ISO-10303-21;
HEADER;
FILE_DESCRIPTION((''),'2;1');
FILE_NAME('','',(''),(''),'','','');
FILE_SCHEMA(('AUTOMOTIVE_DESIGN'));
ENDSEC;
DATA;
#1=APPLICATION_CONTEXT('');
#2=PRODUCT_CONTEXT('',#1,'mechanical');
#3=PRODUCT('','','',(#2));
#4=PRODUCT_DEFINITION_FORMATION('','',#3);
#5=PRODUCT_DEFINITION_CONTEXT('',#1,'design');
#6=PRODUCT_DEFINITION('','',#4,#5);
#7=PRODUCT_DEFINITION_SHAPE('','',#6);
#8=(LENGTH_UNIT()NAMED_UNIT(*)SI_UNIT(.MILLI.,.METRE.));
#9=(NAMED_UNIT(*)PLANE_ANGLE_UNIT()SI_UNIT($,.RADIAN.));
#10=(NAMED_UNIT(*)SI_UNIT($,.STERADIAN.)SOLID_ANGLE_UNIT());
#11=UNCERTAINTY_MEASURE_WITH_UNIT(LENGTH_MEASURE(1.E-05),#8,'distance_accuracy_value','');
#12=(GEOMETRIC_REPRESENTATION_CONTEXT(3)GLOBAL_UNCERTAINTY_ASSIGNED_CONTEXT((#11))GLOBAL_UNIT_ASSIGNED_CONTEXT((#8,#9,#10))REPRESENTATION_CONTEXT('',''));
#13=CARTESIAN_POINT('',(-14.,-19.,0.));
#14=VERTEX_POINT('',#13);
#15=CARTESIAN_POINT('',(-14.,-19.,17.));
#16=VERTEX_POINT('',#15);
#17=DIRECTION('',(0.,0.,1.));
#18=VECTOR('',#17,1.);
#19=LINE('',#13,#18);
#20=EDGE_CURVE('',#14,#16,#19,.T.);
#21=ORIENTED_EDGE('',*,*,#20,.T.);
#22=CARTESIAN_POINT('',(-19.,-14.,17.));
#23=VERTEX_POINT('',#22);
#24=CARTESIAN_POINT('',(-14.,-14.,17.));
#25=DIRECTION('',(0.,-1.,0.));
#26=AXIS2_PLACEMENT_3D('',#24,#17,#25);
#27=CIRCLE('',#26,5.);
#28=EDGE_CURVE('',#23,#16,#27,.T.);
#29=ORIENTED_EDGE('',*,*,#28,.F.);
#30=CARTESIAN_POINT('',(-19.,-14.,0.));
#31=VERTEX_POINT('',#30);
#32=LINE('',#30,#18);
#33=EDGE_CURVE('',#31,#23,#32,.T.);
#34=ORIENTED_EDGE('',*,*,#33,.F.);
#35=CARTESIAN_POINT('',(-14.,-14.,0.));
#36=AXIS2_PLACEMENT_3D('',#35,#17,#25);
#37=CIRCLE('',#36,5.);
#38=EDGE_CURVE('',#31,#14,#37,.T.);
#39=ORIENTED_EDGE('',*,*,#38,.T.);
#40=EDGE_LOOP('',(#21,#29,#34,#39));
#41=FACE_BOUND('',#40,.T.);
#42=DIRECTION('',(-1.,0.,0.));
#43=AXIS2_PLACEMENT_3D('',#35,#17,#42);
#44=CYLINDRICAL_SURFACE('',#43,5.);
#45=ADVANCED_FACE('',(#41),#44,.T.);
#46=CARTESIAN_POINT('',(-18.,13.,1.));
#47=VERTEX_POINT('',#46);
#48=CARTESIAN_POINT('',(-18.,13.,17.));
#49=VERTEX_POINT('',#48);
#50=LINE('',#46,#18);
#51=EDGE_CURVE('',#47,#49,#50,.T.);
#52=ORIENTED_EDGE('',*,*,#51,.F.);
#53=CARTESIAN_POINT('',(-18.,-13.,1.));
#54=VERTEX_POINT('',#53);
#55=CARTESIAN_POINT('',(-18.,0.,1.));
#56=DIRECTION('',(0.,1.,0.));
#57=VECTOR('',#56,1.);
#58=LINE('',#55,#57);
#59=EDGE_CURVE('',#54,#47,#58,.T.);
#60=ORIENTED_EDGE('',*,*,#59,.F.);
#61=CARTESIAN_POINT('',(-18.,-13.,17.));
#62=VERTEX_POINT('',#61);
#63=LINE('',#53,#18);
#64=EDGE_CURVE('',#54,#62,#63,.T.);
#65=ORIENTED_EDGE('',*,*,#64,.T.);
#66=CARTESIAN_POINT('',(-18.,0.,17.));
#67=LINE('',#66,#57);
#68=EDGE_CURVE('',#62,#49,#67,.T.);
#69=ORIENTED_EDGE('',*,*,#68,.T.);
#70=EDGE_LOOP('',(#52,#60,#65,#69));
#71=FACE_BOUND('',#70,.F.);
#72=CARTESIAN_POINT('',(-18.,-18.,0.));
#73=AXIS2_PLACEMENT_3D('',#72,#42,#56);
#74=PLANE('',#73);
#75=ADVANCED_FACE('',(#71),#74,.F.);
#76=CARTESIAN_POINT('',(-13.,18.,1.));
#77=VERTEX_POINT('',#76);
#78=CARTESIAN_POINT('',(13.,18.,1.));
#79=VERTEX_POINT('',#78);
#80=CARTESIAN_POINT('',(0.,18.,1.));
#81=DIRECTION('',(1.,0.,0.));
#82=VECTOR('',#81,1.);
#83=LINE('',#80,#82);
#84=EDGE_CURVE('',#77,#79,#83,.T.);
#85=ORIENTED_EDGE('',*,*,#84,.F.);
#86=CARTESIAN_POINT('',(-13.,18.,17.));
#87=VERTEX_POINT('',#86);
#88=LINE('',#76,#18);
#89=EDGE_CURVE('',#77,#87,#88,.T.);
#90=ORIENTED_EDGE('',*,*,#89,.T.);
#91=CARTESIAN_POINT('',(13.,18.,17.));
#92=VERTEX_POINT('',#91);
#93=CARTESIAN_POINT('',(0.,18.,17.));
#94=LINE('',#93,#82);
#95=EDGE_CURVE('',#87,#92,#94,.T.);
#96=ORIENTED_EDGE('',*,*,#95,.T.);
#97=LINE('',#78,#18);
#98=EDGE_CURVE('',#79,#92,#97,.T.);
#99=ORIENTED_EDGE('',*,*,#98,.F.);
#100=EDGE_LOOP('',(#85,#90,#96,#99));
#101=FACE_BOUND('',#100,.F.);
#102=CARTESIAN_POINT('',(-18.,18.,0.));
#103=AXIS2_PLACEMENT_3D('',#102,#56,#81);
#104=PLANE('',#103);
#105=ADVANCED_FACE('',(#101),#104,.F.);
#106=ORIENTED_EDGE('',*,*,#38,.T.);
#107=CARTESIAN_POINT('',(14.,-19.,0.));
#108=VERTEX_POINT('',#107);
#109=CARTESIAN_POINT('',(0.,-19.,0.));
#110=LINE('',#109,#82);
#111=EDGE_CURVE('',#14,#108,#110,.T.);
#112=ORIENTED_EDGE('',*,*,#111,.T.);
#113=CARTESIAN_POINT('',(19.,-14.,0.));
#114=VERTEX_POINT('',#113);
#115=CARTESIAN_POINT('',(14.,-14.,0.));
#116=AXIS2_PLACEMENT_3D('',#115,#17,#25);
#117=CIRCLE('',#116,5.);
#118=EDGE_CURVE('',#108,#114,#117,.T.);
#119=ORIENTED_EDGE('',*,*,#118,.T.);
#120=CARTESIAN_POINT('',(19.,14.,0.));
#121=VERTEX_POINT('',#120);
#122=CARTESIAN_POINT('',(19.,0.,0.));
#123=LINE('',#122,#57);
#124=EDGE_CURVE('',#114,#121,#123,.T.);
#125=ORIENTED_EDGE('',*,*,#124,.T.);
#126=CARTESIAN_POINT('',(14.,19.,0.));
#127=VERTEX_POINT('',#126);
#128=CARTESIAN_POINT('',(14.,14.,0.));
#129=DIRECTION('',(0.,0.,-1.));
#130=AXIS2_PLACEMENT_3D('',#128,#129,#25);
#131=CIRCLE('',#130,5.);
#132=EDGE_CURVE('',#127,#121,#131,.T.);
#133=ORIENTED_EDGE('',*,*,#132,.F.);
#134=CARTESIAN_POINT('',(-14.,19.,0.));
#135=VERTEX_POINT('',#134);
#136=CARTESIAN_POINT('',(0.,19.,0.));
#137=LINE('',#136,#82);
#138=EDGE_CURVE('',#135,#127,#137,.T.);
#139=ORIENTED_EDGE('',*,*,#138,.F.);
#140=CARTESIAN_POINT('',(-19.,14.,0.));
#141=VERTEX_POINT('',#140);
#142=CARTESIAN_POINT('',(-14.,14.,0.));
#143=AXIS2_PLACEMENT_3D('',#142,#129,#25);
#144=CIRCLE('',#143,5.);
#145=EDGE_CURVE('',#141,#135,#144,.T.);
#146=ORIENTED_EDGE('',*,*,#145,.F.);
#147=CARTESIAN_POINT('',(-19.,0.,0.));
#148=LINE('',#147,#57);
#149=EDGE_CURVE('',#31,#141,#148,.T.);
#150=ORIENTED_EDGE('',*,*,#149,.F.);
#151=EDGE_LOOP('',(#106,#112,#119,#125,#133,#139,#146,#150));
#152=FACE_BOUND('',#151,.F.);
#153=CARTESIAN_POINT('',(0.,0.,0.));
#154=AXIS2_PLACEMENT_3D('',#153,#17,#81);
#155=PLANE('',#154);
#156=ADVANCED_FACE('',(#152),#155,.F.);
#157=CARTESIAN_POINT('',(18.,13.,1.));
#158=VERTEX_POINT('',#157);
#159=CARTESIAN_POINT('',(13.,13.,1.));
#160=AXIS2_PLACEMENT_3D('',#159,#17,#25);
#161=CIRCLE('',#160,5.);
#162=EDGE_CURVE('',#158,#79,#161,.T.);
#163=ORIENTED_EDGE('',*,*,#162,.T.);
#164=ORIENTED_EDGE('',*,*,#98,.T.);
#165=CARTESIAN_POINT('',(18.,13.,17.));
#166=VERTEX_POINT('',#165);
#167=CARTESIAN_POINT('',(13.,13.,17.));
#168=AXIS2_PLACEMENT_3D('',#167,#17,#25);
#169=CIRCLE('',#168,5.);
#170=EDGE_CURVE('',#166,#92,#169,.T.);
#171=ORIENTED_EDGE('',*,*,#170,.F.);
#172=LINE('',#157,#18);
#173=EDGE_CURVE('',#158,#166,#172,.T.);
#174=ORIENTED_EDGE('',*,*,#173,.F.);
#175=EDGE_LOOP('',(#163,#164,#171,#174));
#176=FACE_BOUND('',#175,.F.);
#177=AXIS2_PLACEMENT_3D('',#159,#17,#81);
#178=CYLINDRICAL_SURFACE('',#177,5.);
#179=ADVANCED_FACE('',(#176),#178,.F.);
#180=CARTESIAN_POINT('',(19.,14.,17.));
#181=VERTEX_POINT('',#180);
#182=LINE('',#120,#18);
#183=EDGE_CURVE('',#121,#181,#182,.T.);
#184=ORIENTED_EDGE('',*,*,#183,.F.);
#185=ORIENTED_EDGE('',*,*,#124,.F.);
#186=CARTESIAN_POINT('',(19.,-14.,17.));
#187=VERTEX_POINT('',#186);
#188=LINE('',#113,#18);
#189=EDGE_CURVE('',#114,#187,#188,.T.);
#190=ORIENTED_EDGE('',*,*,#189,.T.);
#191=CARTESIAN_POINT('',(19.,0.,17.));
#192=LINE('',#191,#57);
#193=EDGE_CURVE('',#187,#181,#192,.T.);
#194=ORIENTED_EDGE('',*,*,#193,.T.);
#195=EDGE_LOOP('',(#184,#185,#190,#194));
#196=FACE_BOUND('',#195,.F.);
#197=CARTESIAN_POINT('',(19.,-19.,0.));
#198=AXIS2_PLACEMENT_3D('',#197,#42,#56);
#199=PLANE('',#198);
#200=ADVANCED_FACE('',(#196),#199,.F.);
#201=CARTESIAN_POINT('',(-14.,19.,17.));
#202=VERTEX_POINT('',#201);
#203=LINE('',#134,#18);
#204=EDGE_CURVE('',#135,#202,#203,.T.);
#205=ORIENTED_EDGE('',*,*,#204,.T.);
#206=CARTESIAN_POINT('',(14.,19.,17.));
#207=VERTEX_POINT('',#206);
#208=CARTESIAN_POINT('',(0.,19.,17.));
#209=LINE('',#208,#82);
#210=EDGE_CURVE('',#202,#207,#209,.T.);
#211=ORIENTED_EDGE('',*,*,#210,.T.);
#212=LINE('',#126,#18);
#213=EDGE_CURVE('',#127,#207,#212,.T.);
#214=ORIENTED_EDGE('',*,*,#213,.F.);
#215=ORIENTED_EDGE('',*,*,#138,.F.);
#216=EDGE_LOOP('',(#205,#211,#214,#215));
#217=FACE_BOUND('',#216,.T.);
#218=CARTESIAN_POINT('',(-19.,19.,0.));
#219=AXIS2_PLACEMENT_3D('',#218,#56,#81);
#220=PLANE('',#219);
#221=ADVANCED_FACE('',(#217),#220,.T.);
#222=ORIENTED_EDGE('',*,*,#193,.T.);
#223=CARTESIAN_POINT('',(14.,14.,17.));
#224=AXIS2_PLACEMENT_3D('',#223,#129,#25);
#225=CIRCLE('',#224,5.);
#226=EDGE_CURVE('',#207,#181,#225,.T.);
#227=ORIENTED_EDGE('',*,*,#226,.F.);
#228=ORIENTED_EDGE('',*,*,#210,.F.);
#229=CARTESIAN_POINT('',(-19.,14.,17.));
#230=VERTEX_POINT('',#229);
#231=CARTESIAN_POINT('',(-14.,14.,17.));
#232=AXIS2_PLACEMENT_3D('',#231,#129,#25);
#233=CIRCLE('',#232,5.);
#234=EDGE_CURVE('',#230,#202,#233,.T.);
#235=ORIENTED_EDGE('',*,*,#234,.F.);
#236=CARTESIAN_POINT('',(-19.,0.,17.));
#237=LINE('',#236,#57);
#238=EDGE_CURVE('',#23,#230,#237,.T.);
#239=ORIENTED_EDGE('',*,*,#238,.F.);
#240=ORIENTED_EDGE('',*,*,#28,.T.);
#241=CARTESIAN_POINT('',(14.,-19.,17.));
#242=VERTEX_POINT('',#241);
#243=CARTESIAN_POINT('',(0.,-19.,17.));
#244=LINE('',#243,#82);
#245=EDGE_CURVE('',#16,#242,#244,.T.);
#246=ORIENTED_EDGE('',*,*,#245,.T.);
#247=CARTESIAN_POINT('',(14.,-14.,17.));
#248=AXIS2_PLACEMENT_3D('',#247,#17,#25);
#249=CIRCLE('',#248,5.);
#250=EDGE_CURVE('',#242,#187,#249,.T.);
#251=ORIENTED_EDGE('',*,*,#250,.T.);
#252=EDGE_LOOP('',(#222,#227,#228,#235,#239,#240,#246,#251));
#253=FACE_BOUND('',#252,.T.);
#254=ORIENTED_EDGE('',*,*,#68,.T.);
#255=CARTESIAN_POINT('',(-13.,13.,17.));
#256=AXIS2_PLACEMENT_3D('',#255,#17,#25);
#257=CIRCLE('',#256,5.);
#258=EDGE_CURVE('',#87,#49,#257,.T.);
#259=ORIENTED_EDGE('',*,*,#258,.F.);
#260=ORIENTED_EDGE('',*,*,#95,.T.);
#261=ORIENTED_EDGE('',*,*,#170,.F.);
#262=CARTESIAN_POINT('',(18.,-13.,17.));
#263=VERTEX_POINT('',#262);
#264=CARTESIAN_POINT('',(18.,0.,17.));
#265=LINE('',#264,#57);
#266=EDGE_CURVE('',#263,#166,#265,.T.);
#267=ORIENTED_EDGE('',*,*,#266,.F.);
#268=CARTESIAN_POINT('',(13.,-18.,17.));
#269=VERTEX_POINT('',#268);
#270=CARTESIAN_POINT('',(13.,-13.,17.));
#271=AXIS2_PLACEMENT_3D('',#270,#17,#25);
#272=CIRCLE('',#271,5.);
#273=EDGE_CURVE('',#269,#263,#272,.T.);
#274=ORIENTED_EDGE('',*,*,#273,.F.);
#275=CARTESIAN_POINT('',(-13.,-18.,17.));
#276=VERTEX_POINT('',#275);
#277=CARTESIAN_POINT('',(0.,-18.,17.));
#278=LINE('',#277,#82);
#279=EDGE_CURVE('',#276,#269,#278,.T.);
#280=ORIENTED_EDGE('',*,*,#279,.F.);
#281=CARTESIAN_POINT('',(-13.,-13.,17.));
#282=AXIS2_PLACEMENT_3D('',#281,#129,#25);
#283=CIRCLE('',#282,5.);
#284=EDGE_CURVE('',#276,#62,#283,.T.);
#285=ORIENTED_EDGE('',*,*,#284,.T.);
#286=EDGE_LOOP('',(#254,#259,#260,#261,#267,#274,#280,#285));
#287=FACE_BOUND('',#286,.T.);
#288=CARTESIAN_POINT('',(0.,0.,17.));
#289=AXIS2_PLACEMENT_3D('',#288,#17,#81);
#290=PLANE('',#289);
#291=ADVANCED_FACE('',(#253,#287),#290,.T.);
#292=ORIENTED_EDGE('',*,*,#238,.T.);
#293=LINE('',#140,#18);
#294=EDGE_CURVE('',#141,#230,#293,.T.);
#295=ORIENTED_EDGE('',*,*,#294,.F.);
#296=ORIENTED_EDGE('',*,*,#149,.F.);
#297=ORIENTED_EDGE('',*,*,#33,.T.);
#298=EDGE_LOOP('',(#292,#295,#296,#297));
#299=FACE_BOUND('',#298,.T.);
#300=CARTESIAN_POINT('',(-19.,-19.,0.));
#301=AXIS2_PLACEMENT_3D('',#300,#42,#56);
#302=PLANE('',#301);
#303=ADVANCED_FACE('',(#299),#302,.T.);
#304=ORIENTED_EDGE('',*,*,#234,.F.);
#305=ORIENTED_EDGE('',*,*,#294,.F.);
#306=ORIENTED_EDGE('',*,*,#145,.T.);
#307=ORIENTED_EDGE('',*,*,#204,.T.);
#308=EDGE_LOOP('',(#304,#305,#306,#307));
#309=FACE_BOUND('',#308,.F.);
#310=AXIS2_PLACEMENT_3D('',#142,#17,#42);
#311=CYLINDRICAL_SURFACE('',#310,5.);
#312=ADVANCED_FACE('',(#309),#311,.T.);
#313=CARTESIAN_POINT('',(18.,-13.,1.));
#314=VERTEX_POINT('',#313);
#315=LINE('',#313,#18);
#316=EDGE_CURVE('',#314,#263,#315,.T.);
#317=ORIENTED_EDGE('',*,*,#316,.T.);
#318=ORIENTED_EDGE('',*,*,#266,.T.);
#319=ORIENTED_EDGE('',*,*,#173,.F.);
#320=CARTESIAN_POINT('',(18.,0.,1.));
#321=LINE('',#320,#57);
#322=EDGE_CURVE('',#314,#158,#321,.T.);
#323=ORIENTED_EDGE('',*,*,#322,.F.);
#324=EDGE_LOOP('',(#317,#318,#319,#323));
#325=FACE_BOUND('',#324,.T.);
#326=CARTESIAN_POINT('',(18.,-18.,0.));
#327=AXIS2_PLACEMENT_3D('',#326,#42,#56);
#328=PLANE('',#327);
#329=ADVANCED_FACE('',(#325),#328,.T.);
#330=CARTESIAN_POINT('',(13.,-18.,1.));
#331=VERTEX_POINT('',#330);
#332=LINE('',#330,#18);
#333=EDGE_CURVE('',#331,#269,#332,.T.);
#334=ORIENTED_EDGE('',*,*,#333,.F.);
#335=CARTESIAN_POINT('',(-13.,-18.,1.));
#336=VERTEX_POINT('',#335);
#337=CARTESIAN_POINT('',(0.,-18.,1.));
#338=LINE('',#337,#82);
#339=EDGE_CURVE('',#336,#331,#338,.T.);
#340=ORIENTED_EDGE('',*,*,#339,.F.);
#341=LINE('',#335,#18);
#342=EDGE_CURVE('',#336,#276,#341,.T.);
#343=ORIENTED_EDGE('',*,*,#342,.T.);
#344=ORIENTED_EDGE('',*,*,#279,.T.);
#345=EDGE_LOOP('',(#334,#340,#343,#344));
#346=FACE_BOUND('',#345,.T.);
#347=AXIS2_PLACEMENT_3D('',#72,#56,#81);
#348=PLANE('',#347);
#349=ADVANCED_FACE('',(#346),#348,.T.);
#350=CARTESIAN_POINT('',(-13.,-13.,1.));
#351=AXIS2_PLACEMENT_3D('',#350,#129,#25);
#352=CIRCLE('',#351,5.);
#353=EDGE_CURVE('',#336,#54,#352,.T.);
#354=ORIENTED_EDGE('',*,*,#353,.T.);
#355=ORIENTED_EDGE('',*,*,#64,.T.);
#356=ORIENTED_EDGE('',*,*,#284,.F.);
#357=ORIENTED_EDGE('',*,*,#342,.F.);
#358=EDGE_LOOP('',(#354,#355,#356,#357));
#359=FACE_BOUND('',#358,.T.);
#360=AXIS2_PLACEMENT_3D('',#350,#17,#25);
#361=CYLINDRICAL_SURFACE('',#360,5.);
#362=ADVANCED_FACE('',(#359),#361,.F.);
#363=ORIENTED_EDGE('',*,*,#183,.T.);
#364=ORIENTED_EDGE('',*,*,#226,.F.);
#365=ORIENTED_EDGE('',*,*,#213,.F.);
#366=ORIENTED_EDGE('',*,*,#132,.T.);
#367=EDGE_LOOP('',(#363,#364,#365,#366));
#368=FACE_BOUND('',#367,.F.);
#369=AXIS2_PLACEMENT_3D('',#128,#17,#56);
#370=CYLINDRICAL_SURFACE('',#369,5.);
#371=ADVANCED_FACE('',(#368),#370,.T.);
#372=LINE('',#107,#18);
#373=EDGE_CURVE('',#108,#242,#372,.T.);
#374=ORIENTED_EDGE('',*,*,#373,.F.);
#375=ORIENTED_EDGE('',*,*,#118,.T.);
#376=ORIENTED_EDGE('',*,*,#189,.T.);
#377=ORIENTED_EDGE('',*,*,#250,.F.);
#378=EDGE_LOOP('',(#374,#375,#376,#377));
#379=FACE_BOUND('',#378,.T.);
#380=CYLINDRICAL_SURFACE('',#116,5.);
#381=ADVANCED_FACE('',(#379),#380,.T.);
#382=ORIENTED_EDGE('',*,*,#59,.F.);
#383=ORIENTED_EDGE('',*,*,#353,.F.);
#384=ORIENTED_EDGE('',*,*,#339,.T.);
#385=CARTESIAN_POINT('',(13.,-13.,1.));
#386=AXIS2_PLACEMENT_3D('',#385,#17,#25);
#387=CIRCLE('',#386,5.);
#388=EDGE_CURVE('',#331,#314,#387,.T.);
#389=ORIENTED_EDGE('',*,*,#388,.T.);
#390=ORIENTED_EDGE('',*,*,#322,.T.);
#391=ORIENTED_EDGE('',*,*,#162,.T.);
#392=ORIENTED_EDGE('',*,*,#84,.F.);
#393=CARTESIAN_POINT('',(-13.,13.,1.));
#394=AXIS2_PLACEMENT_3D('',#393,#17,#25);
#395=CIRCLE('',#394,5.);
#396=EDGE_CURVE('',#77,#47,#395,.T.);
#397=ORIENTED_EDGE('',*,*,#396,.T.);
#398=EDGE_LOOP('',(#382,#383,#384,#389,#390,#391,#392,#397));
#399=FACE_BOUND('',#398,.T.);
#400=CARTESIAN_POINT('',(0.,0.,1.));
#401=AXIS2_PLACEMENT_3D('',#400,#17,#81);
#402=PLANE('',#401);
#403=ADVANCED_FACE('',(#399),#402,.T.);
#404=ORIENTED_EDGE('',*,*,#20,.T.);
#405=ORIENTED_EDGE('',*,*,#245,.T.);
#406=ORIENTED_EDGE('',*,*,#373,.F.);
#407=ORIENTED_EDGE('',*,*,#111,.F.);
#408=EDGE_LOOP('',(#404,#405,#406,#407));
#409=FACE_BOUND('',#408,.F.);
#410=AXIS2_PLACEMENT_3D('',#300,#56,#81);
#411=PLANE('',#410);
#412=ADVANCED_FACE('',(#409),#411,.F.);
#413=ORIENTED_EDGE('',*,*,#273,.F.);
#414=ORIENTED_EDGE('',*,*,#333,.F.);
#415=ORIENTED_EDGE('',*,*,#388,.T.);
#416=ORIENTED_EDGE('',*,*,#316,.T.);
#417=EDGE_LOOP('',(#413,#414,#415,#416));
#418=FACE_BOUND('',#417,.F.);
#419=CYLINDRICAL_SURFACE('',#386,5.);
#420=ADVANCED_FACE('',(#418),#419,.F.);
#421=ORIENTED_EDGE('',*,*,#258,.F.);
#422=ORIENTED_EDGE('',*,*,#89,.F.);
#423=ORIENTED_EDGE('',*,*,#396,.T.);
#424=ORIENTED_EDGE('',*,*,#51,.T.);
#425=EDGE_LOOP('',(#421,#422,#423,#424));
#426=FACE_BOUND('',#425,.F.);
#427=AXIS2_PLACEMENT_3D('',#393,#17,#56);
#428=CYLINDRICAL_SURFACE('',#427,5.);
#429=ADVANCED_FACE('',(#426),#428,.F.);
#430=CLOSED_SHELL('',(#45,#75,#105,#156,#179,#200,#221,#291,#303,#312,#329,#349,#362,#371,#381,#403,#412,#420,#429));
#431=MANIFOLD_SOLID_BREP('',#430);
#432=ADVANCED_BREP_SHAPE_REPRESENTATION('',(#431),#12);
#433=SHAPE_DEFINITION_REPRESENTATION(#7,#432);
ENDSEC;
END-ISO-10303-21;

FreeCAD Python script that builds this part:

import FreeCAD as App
import Part
import Sketcher

V = App.Vector


def edges_at(feature, points):
    """Names of the edges that pass closest to the given points."""
    edges = feature.Shape.Edges
    near = lambda p: min(range(len(edges)), key=lambda i: edges[i].distToShape(Part.Vertex(*p))[0])
    return sorted({f"Edge{near(p) + 1}" for p in points})


def add_polygon(sketch, points):
    """Adds a closed chain of lines whose ends are joined by coincident constraints."""
    first, n = sketch.GeometryCount, len(points)
    for a, b in zip(points, points[1:] + points[:1]):
        sketch.addGeometry(Part.LineSegment(App.Vector(*a, 0), App.Vector(*b, 0)), False)
    for i in range(n):
        sketch.addConstraint(Sketcher.Constraint("Coincident", first + i, 2, first + (i + 1) % n, 1))

doc = App.newDocument("Part")
body = doc.addObject("PartDesign::Body", "Body")

sketch1 = doc.addObject("Sketcher::SketchObject", "Sketch")
body.addObject(sketch1)
sketch1.AttachmentSupport = (doc.XY_Plane, [""])
sketch1.MapMode = "FlatFace"
add_polygon(sketch1, [(-18, 18), (-18, -18), (18, -18), (18, 18)])
sketch1.addConstraint([
    Sketcher.Constraint("Vertical", 0),
    Sketcher.Constraint("Horizontal", 1),
    Sketcher.Constraint("Vertical", 2),
    Sketcher.Constraint("Horizontal", 3),
    Sketcher.Constraint("Symmetric", 0, 2, 2, 2, -1, 1),
    Sketcher.Constraint("Equal", 3, 0),
    Sketcher.Constraint("DistanceX", 1, 1, 1, 2, 36.0),
])
pad1 = doc.addObject("PartDesign::Pad", "Pad")
body.addObject(pad1)
pad1.Profile = sketch1
pad1.Length = 1

sketch2 = doc.addObject("Sketcher::SketchObject", "Sketch001")
body.addObject(sketch2)
sketch2.AttachmentSupport = (doc.XY_Plane, [""])
sketch2.MapMode = "FlatFace"
add_polygon(sketch2, [(-19, 19), (-19, -19), (19, -19), (19, 19)])
add_polygon(sketch2, [(18, -18), (-18, -18), (-18, 18), (18, 18)])
sketch2.addConstraint([
    Sketcher.Constraint("Vertical", 0),
    Sketcher.Constraint("Horizontal", 1),
    Sketcher.Constraint("Vertical", 2),
    Sketcher.Constraint("Horizontal", 3),
    Sketcher.Constraint("Horizontal", 4),
    Sketcher.Constraint("Vertical", 5),
    Sketcher.Constraint("Horizontal", 6),
    Sketcher.Constraint("Vertical", 7),
    Sketcher.Constraint("Symmetric", 0, 2, 2, 2, -1, 1),
    Sketcher.Constraint("Symmetric", 4, 2, 6, 2, -1, 1),
    Sketcher.Constraint("Equal", 3, 0),
    Sketcher.Constraint("Equal", 6, 5),
    Sketcher.Constraint("DistanceX", 1, 1, 1, 2, 38.0),
    Sketcher.Constraint("DistanceX", 4, 2, 4, 1, 36.0),
])
pad2 = doc.addObject("PartDesign::Pad", "Pad001")
body.addObject(pad2)
pad2.Profile = sketch2
pad2.Length = 17
doc.recompute()

fillet = doc.addObject("PartDesign::Fillet", "Fillet")
body.addObject(fillet)
fillet.Base = (pad2, edges_at(pad2, [
    (-18, 18, 9),
    (18, 18, 9),
    (18, -18, 9),
    (-18, -18, 9),
    (-19, 19, 8.5),
    (-19, -19, 8.5),
    (19, -19, 8.5),
    (19, 19, 8.5),
]))
fillet.Radius = 5

doc.recompute()
